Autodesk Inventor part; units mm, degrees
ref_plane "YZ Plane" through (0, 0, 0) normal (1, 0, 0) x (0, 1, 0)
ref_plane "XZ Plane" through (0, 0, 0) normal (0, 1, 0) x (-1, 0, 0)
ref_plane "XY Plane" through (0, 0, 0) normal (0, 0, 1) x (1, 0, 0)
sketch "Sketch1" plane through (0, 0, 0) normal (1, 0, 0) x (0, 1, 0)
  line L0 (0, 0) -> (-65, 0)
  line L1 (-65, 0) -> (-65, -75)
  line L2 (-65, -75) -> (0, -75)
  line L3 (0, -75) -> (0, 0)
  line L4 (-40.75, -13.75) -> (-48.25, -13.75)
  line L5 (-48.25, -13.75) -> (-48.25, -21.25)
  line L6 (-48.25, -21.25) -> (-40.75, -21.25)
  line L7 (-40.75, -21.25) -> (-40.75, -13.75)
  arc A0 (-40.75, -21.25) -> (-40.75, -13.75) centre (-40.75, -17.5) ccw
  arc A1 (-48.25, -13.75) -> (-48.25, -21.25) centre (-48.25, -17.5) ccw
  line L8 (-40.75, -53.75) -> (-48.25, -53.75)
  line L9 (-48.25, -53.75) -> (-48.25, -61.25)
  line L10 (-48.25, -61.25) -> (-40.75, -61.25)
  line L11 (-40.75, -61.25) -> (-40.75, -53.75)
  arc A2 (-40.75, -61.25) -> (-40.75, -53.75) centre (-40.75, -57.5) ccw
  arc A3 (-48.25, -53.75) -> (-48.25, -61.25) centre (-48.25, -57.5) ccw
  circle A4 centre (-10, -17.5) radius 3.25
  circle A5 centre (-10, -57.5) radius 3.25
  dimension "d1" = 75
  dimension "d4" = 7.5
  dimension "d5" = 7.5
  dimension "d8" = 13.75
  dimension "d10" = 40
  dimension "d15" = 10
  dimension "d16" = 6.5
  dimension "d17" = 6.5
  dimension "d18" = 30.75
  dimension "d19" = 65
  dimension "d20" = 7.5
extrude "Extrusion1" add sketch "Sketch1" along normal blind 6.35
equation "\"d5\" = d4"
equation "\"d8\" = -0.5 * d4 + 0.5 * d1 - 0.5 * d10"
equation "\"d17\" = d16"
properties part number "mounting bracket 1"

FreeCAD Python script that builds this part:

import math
import FreeCAD as App
import Part
import Sketcher
from FreeCAD import Vector

doc = App.newDocument("Part")
body = doc.addObject("PartDesign::Body", "Body")

# Sketch on YZ plane
sketch1 = body.newObject("Sketcher::SketchObject", "Sketch")
sketch1.AttachmentSupport = (doc.getObject("YZ_Plane"), [""])
sketch1.MapMode = "FlatFace"
sketch1.addGeometry([
    Part.LineSegment(Vector(0, -75, 0), Vector(0, 0, 0)),  # 0
    Part.LineSegment(Vector(0, 0, 0), Vector(-65, 0, 0)),  # 1
    Part.LineSegment(Vector(-65, 0, 0), Vector(-65, -75, 0)),  # 2
    Part.LineSegment(Vector(-65, -75, 0), Vector(0, -75, 0)),  # 3
    Part.LineSegment(Vector(-48.2, -53.8, 0), Vector(-40.8, -53.8, 0)),  # 4
    Part.ArcOfCircle(Part.Circle(Vector(-40.8, -57.5, 0), Vector(0, 0, 1), 3.8), math.radians(-90), math.radians(90)),  # 5
    Part.LineSegment(Vector(-40.8, -61.2, 0), Vector(-48.2, -61.2, 0)),  # 6
    Part.ArcOfCircle(Part.Circle(Vector(-48.2, -57.5, 0), Vector(0, 0, 1), 3.8), math.radians(90), math.radians(270)),  # 7
    Part.Circle(Vector(-10, -57.5, 0), Vector(0, 0, 1), 3.2),  # 8
    Part.LineSegment(Vector(-48.2, -13.8, 0), Vector(-40.8, -13.8, 0)),  # 9
    Part.ArcOfCircle(Part.Circle(Vector(-40.8, -17.5, 0), Vector(0, 0, 1), 3.8), math.radians(-90), math.radians(90)),  # 10
    Part.LineSegment(Vector(-40.8, -21.2, 0), Vector(-48.2, -21.2, 0)),  # 11
    Part.ArcOfCircle(Part.Circle(Vector(-48.2, -17.5, 0), Vector(0, 0, 1), 3.8), math.radians(90), math.radians(270)),  # 12
    Part.Circle(Vector(-10, -17.5, 0), Vector(0, 0, 1), 3.2),  # 13
], False)
sketch1.addConstraint([
    Sketcher.Constraint("Coincident", 0, 2, 1, 1),
    Sketcher.Constraint("Coincident", 1, 2, 2, 1),
    Sketcher.Constraint("Coincident", 2, 2, 3, 1),
    Sketcher.Constraint("Coincident", 3, 2, 0, 1),
    Sketcher.Constraint("Tangent", 4, 2, 5, 2),
    Sketcher.Constraint("Tangent", 5, 1, 6, 1),
    Sketcher.Constraint("Tangent", 6, 2, 7, 2),
    Sketcher.Constraint("Tangent", 7, 1, 4, 1),
    Sketcher.Constraint("Tangent", 9, 2, 10, 2),
    Sketcher.Constraint("Tangent", 10, 1, 11, 1),
    Sketcher.Constraint("Tangent", 11, 2, 12, 2),
    Sketcher.Constraint("Tangent", 12, 1, 9, 1),
    Sketcher.Constraint("Vertical", 0),
    Sketcher.Constraint("Horizontal", 1),
    Sketcher.Constraint("Vertical", 2),
    Sketcher.Constraint("Horizontal", 3),
    Sketcher.Constraint("Horizontal", 4),
    Sketcher.Constraint("Horizontal", 6),
    Sketcher.Constraint("Horizontal", 9),
    Sketcher.Constraint("Horizontal", 11),
    Sketcher.Constraint("Coincident", 0, 2, -1, 1),
    Sketcher.Constraint("Equal", 7, 10),
    Sketcher.Constraint("Equal", 8, 13),
    Sketcher.Constraint("Horizontal", 7, 3, 8, 3),
    Sketcher.Constraint("Horizontal", 12, 3, 13, 3),
    Sketcher.Constraint("Vertical", 5, 3, 10, 3),
    Sketcher.Constraint("Vertical", 7, 3, 12, 3),
    Sketcher.Constraint("Vertical", 8, 3, 13, 3),
    Sketcher.Constraint("Diameter", 8, 6.5),
    Sketcher.Constraint("DistanceX", 1, 2, 1, 1, 65.0),
    Sketcher.Constraint("DistanceY", 0, 1, 0, 2, 75.0),
    Sketcher.Constraint("Radius", 5, 3.75),
    Sketcher.Constraint("DistanceX", 4, 1, 4, 2, 7.5),
    Sketcher.Constraint("DistanceX", 8, 3, -1, 1, 10.0),
    Sketcher.Constraint("DistanceY", 5, 3, 10, 3, 40.0),
    Sketcher.Constraint("DistanceY", 9, 2, -1, 1, 13.75),
    Sketcher.Constraint("DistanceX", 5, 3, 8, 3, 30.75),
])
pad1 = body.newObject("PartDesign::Pad", "Pad")
pad1.Profile = sketch1
pad1.Length = 6.35

doc.recompute()
